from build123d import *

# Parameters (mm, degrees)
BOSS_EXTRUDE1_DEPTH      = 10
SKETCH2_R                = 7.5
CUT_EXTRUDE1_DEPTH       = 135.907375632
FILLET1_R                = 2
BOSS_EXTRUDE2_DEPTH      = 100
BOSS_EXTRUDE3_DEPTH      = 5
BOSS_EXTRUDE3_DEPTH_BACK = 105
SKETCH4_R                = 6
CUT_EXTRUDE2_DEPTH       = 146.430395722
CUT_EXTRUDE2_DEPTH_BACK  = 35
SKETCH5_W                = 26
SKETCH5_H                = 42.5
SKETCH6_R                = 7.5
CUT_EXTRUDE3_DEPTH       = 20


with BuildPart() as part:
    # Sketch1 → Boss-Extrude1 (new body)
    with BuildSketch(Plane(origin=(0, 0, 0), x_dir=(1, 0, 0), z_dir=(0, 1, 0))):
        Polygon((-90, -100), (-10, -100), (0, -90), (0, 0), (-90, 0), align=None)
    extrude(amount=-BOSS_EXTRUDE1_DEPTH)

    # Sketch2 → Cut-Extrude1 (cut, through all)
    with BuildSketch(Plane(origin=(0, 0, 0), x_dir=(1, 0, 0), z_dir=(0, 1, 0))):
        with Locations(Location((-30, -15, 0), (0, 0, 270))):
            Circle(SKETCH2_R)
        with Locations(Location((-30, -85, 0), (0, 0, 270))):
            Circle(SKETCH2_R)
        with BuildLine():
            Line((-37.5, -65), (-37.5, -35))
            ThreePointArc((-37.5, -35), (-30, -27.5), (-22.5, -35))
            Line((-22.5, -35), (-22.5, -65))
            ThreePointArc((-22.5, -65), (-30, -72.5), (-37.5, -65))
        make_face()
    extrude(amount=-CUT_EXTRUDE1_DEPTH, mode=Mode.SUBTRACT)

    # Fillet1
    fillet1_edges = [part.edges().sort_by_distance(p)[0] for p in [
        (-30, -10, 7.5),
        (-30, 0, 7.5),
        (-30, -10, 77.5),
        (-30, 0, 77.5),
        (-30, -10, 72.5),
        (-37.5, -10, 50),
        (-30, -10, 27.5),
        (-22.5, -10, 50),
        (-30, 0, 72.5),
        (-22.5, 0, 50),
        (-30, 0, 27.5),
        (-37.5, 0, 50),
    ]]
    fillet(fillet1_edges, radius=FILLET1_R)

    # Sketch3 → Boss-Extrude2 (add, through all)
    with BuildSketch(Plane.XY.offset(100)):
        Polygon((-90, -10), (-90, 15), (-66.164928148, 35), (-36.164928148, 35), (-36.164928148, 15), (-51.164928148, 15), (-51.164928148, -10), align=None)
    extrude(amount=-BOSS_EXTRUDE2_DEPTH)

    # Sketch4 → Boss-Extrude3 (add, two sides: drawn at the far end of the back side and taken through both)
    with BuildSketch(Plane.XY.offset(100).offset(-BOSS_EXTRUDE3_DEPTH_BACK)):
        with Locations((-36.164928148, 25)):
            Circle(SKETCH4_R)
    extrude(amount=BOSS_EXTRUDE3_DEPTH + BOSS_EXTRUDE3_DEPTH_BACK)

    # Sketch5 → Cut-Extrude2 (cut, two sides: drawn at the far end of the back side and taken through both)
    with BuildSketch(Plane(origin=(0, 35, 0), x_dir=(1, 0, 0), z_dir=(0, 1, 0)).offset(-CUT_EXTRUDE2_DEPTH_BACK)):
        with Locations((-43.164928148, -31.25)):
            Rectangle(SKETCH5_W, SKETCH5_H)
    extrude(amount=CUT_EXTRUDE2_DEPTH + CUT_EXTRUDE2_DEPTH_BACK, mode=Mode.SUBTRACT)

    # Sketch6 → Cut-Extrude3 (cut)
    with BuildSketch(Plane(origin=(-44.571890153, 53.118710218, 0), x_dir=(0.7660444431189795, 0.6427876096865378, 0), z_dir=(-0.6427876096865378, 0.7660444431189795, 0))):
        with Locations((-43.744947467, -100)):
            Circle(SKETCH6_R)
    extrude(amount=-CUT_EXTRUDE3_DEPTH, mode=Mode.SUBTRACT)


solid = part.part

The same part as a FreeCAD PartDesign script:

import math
import FreeCAD as App
import Part
import Sketcher

V = App.Vector
Q = App.Units.Quantity


def edges_at(feature, points):
    """Names of the edges that pass closest to the given points."""
    edges = feature.Shape.Edges
    near = lambda p: min(range(len(edges)), key=lambda i: edges[i].distToShape(Part.Vertex(*p))[0])
    return sorted({f"Edge{near(p) + 1}" for p in points})


def add_polygon(sketch, points):
    """Adds a closed chain of lines whose ends are joined by coincident constraints."""
    first, n = sketch.GeometryCount, len(points)
    for a, b in zip(points, points[1:] + points[:1]):
        sketch.addGeometry(Part.LineSegment(App.Vector(*a, 0), App.Vector(*b, 0)), False)
    for i in range(n):
        sketch.addConstraint(Sketcher.Constraint("Coincident", first + i, 2, first + (i + 1) % n, 1))

doc = App.newDocument("Part")
params = doc.addObject("Spreadsheet::Sheet", "Params")
for row, (alias, value) in enumerate([
    ("sketch1_width", "80 mm"),
    ("sketch1_width2", "90 mm"),
    ("sketch1_height", "100 mm"),
    ("pad1_length", "10 mm"),
    ("sketch2_diameter", "15 mm"),
    ("sketch2_height", "30 mm"),
    ("fillet_radius", "2 mm"),
    ("sketch3_width", "15 mm"),
    ("sketch3_width2", "30 mm"),
    ("sketch3_height", "25 mm"),
    ("sketch3_height2", "20 mm"),
    ("pad2_length", "100 mm"),
    ("sketch4_diameter", "12 mm"),
    ("pad3_length", "5 mm"),
    ("pad3_length2", "105 mm"),
    ("sketch5_width", "26 mm"),
    ("sketch5_height", "42.5 mm"),
    ("pocket2_length", "146.430396 mm"),
    ("pocket2_length2", "35 mm"),
    ("sketch6_diameter", "15 mm"),
    ("pocket3_length", "20 mm"),
], start=1):
    params.set(f"A{row}", alias)
    params.set(f"B{row}", "=" + value)
    params.setAlias(f"B{row}", alias)

body = doc.addObject("PartDesign::Body", "Body")

# Sketch on XZ plane
sketch1 = body.newObject("Sketcher::SketchObject", "Sketch")
sketch1.AttachmentSupport = (doc.getObject("XZ_Plane"), [""])
sketch1.MapMode = "FlatFace"
add_polygon(sketch1, [(-90, 100), (-10, 100), (0, 90), (0, 0), (-90, 0)])  # lines 0-4
sketch1.addConstraint([
    Sketcher.Constraint("Horizontal", 0),
    Sketcher.Constraint("Vertical", 2),
    Sketcher.Constraint("Horizontal", 3),
    Sketcher.Constraint("Vertical", 4),
    Sketcher.Constraint("Coincident", 2, 2, -1, 1),
    Sketcher.Constraint("Equal", 3, 2),
    Sketcher.Constraint("DistanceX", 0, 1, 0, 2, 80.0),
    Sketcher.Constraint("DistanceX", 3, 2, 3, 1, 90.0),
    Sketcher.Constraint("DistanceY", 4, 1, 4, 2, 100.0),
])
sketch1.setExpression("Constraints[11]", "Params.sketch1_width")
sketch1.setExpression("Constraints[12]", "Params.sketch1_width2")
sketch1.setExpression("Constraints[13]", "Params.sketch1_height")
pad1 = body.newObject("PartDesign::Pad", "Pad")
pad1.Profile = sketch1
pad1.setExpression("Length", "Params.pad1_length")

# Sketch on XZ plane
sketch2 = body.newObject("Sketcher::SketchObject", "Sketch001")
sketch2.AttachmentSupport = (doc.getObject("XZ_Plane"), [""])
sketch2.MapMode = "FlatFace"
sketch2.addGeometry([
    Part.Circle(V(-30, 15, 0), V(0, 0, 1), 7.5),  # 0
    Part.Circle(V(-30, 85, 0), V(0, 0, 1), 7.5),  # 1
    Part.LineSegment(V(-37.5, 35, 0), V(-37.5, 65, 0)),  # 2
    Part.ArcOfCircle(Part.Circle(V(-30, 65, 0), V(0, 0, 1), 7.5), math.radians(0), math.radians(180)),  # 3
    Part.LineSegment(V(-22.5, 65, 0), V(-22.5, 35, 0)),  # 4
    Part.ArcOfCircle(Part.Circle(V(-30, 35, 0), V(0, 0, 1), 7.5), math.radians(180), math.radians(360)),  # 5
], False)
sketch2.addConstraint([
    Sketcher.Constraint("Tangent", 2, 2, 3, 2),
    Sketcher.Constraint("Tangent", 3, 1, 4, 1),
    Sketcher.Constraint("Tangent", 4, 2, 5, 2),
    Sketcher.Constraint("Tangent", 5, 1, 2, 1),
    Sketcher.Constraint("Vertical", 2),
    Sketcher.Constraint("Vertical", 4),
    Sketcher.Constraint("Equal", 0, 1),
    Sketcher.Constraint("Equal", 1, 3),
    Sketcher.Constraint("Vertical", 0, 3, 1, 3),
    Sketcher.Constraint("Vertical", 1, 3, 3, 3),
    Sketcher.Constraint("Diameter", 0, 15.0),
    Sketcher.Constraint("DistanceY", 2, 1, 2, 2, 30.0),
    Sketcher.Constraint("DistanceX", 0, 3, -1, 1, 30.0),
    Sketcher.Constraint("DistanceY", -1, 1, 0, 3, 15.0),
    Sketcher.Constraint("DistanceY", -1, 1, 1, 3, 85.0),
    Sketcher.Constraint("DistanceY", -1, 1, 3, 3, 65.0),
])
sketch2.setExpression("Constraints[10]", "Params.sketch2_diameter")
sketch2.setExpression("Constraints[11]", "Params.sketch2_height")
pocket1 = body.newObject("PartDesign::Pocket", "Pocket")
pocket1.Profile = sketch2
pocket1.Type = "ThroughAll"
pocket1.Reversed = True
doc.recompute()

fillet = body.newObject("PartDesign::Fillet", "Fillet")
fillet.Base = (pocket1, edges_at(pocket1, [
    (-30, -10, 7.5),
    (-30, 0, 7.5),
    (-30, -10, 77.5),
    (-30, 0, 77.5),
    (-30, -10, 72.5),
    (-37.5, -10, 50),
    (-30, -10, 27.5),
    (-22.5, -10, 50),
    (-30, 0, 72.5),
    (-22.5, 0, 50),
    (-30, 0, 27.5),
    (-37.5, 0, 50),
]))
fillet.setExpression("Radius", "Params.fillet_radius")

# Sketch on XY plane
sketch3 = body.newObject("Sketcher::SketchObject", "Sketch002")
sketch3.AttachmentSupport = (doc.getObject("XY_Plane"), [""])
sketch3.MapMode = "FlatFace"
sketch3.AttachmentOffset = App.Placement(V(0, 0, 100), App.Rotation())
add_polygon(sketch3, [(-90, 15), (-90, -10), (-51.164928, -10), (-51.164928, 15), (-36.164928, 15), (-36.164928, 35), (-66.164928, 35)])  # lines 0-6
sketch3.addConstraint([
    Sketcher.Constraint("Vertical", 0),
    Sketcher.Constraint("Horizontal", 1),
    Sketcher.Constraint("Vertical", 2),
    Sketcher.Constraint("Horizontal", 3),
    Sketcher.Constraint("Vertical", 4),
    Sketcher.Constraint("Horizontal", 5),
    Sketcher.Constraint("Horizontal", 3, 2, 6, 2),
    Sketcher.Constraint("DistanceX", 3, 1, 3, 2, 15.0),
    Sketcher.Constraint("DistanceX", 5, 2, 5, 1, 30.0),
    Sketcher.Constraint("DistanceY", 0, 2, 0, 1, 25.0),
    Sketcher.Constraint("DistanceY", 4, 1, 4, 2, 20.0),
    Sketcher.Constraint("Angle", 6, Q("-140 deg")),
    Sketcher.Constraint("DistanceX", 0, 2, -1, 1, 90.0),
    Sketcher.Constraint("DistanceY", 0, 2, -1, 1, 10.0),
])
sketch3.setExpression("Constraints[14]", "Params.sketch3_width")
sketch3.setExpression("Constraints[15]", "Params.sketch3_width2")
sketch3.setExpression("Constraints[16]", "Params.sketch3_height")
sketch3.setExpression("Constraints[17]", "Params.sketch3_height2")
pad2 = body.newObject("PartDesign::Pad", "Pad001")
pad2.Profile = sketch3
pad2.setExpression("Length", "Params.pad2_length")
pad2.Reversed = True

# Sketch on XY plane
sketch4 = body.newObject("Sketcher::SketchObject", "Sketch003")
sketch4.AttachmentSupport = (doc.getObject("XY_Plane"), [""])
sketch4.MapMode = "FlatFace"
sketch4.AttachmentOffset = App.Placement(V(0, 0, 100), App.Rotation())
sketch4.addGeometry(Part.Circle(V(-36.164928, 25, 0), V(0, 0, 1), 6), False)
sketch4.addConstraint([
    Sketcher.Constraint("Diameter", 0, 12.0),
    Sketcher.Constraint("DistanceY", -1, 1, 0, 3, 25.0),
    Sketcher.Constraint("DistanceX", 0, 3, -1, 1, 36.164928),
])
sketch4.setExpression("Constraints[0]", "Params.sketch4_diameter")
pad3 = body.newObject("PartDesign::Pad", "Pad002")
pad3.Profile = sketch4
pad3.Type = "TwoLengths"
pad3.setExpression("Length", "Params.pad3_length")
pad3.setExpression("Length2", "Params.pad3_length2")

# Sketch on XZ plane
sketch5 = body.newObject("Sketcher::SketchObject", "Sketch004")
sketch5.AttachmentSupport = (doc.getObject("XZ_Plane"), [""])
sketch5.MapMode = "FlatFace"
sketch5.AttachmentOffset = App.Placement(V(0, 0, -35), App.Rotation())
add_polygon(sketch5, [(-56.164928, 10), (-56.164928, 52.5), (-30.164928, 52.5), (-30.164928, 10)])  # lines 0-3
sketch5.addConstraint([
    Sketcher.Constraint("Vertical", 0),
    Sketcher.Constraint("Horizontal", 1),
    Sketcher.Constraint("Vertical", 2),
    Sketcher.Constraint("Horizontal", 3),
    Sketcher.Constraint("DistanceX", 1, 1, 1, 2, 26.0),
    Sketcher.Constraint("DistanceY", 0, 1, 0, 2, 42.5),
    Sketcher.Constraint("DistanceY", -1, 1, 2, 2, 10.0),
    Sketcher.Constraint("DistanceX", 0, 2, -1, 1, 56.164928),
])
sketch5.setExpression("Constraints[8]", "Params.sketch5_width")
sketch5.setExpression("Constraints[9]", "Params.sketch5_height")
pocket2 = body.newObject("PartDesign::Pocket", "Pocket001")
pocket2.Profile = sketch5
pocket2.Type = "TwoLengths"
pocket2.setExpression("Length", "Params.pocket2_length")
pocket2.setExpression("Length2", "Params.pocket2_length2")

# Sketch on an angled plane
sketch6 = body.newObject("Sketcher::SketchObject", "Sketch005")
sketch6.Placement = App.Placement(V(-44.57189, 53.11871, 0), App.Rotation(V(0.766044443, 0.64278761, 0), V(0, 0, -1), V(-0.64278761, 0.766044443, 0), "ZXY"))
sketch6.addGeometry(Part.Circle(V(-43.744947, -100, 0), V(0, 0, 1), 7.5), False)
sketch6.addConstraint([
    Sketcher.Constraint("Diameter", 0, 15.0),
    Sketcher.Constraint("DistanceY", 0, 3, -1, 1, 100.0),
    Sketcher.Constraint("DistanceX", 0, 3, -1, 1, 43.744947),
])
sketch6.setExpression("Constraints[0]", "Params.sketch6_diameter")
pocket3 = body.newObject("PartDesign::Pocket", "Pocket002")
pocket3.Profile = sketch6
pocket3.setExpression("Length", "Params.pocket3_length")

doc.recompute()
